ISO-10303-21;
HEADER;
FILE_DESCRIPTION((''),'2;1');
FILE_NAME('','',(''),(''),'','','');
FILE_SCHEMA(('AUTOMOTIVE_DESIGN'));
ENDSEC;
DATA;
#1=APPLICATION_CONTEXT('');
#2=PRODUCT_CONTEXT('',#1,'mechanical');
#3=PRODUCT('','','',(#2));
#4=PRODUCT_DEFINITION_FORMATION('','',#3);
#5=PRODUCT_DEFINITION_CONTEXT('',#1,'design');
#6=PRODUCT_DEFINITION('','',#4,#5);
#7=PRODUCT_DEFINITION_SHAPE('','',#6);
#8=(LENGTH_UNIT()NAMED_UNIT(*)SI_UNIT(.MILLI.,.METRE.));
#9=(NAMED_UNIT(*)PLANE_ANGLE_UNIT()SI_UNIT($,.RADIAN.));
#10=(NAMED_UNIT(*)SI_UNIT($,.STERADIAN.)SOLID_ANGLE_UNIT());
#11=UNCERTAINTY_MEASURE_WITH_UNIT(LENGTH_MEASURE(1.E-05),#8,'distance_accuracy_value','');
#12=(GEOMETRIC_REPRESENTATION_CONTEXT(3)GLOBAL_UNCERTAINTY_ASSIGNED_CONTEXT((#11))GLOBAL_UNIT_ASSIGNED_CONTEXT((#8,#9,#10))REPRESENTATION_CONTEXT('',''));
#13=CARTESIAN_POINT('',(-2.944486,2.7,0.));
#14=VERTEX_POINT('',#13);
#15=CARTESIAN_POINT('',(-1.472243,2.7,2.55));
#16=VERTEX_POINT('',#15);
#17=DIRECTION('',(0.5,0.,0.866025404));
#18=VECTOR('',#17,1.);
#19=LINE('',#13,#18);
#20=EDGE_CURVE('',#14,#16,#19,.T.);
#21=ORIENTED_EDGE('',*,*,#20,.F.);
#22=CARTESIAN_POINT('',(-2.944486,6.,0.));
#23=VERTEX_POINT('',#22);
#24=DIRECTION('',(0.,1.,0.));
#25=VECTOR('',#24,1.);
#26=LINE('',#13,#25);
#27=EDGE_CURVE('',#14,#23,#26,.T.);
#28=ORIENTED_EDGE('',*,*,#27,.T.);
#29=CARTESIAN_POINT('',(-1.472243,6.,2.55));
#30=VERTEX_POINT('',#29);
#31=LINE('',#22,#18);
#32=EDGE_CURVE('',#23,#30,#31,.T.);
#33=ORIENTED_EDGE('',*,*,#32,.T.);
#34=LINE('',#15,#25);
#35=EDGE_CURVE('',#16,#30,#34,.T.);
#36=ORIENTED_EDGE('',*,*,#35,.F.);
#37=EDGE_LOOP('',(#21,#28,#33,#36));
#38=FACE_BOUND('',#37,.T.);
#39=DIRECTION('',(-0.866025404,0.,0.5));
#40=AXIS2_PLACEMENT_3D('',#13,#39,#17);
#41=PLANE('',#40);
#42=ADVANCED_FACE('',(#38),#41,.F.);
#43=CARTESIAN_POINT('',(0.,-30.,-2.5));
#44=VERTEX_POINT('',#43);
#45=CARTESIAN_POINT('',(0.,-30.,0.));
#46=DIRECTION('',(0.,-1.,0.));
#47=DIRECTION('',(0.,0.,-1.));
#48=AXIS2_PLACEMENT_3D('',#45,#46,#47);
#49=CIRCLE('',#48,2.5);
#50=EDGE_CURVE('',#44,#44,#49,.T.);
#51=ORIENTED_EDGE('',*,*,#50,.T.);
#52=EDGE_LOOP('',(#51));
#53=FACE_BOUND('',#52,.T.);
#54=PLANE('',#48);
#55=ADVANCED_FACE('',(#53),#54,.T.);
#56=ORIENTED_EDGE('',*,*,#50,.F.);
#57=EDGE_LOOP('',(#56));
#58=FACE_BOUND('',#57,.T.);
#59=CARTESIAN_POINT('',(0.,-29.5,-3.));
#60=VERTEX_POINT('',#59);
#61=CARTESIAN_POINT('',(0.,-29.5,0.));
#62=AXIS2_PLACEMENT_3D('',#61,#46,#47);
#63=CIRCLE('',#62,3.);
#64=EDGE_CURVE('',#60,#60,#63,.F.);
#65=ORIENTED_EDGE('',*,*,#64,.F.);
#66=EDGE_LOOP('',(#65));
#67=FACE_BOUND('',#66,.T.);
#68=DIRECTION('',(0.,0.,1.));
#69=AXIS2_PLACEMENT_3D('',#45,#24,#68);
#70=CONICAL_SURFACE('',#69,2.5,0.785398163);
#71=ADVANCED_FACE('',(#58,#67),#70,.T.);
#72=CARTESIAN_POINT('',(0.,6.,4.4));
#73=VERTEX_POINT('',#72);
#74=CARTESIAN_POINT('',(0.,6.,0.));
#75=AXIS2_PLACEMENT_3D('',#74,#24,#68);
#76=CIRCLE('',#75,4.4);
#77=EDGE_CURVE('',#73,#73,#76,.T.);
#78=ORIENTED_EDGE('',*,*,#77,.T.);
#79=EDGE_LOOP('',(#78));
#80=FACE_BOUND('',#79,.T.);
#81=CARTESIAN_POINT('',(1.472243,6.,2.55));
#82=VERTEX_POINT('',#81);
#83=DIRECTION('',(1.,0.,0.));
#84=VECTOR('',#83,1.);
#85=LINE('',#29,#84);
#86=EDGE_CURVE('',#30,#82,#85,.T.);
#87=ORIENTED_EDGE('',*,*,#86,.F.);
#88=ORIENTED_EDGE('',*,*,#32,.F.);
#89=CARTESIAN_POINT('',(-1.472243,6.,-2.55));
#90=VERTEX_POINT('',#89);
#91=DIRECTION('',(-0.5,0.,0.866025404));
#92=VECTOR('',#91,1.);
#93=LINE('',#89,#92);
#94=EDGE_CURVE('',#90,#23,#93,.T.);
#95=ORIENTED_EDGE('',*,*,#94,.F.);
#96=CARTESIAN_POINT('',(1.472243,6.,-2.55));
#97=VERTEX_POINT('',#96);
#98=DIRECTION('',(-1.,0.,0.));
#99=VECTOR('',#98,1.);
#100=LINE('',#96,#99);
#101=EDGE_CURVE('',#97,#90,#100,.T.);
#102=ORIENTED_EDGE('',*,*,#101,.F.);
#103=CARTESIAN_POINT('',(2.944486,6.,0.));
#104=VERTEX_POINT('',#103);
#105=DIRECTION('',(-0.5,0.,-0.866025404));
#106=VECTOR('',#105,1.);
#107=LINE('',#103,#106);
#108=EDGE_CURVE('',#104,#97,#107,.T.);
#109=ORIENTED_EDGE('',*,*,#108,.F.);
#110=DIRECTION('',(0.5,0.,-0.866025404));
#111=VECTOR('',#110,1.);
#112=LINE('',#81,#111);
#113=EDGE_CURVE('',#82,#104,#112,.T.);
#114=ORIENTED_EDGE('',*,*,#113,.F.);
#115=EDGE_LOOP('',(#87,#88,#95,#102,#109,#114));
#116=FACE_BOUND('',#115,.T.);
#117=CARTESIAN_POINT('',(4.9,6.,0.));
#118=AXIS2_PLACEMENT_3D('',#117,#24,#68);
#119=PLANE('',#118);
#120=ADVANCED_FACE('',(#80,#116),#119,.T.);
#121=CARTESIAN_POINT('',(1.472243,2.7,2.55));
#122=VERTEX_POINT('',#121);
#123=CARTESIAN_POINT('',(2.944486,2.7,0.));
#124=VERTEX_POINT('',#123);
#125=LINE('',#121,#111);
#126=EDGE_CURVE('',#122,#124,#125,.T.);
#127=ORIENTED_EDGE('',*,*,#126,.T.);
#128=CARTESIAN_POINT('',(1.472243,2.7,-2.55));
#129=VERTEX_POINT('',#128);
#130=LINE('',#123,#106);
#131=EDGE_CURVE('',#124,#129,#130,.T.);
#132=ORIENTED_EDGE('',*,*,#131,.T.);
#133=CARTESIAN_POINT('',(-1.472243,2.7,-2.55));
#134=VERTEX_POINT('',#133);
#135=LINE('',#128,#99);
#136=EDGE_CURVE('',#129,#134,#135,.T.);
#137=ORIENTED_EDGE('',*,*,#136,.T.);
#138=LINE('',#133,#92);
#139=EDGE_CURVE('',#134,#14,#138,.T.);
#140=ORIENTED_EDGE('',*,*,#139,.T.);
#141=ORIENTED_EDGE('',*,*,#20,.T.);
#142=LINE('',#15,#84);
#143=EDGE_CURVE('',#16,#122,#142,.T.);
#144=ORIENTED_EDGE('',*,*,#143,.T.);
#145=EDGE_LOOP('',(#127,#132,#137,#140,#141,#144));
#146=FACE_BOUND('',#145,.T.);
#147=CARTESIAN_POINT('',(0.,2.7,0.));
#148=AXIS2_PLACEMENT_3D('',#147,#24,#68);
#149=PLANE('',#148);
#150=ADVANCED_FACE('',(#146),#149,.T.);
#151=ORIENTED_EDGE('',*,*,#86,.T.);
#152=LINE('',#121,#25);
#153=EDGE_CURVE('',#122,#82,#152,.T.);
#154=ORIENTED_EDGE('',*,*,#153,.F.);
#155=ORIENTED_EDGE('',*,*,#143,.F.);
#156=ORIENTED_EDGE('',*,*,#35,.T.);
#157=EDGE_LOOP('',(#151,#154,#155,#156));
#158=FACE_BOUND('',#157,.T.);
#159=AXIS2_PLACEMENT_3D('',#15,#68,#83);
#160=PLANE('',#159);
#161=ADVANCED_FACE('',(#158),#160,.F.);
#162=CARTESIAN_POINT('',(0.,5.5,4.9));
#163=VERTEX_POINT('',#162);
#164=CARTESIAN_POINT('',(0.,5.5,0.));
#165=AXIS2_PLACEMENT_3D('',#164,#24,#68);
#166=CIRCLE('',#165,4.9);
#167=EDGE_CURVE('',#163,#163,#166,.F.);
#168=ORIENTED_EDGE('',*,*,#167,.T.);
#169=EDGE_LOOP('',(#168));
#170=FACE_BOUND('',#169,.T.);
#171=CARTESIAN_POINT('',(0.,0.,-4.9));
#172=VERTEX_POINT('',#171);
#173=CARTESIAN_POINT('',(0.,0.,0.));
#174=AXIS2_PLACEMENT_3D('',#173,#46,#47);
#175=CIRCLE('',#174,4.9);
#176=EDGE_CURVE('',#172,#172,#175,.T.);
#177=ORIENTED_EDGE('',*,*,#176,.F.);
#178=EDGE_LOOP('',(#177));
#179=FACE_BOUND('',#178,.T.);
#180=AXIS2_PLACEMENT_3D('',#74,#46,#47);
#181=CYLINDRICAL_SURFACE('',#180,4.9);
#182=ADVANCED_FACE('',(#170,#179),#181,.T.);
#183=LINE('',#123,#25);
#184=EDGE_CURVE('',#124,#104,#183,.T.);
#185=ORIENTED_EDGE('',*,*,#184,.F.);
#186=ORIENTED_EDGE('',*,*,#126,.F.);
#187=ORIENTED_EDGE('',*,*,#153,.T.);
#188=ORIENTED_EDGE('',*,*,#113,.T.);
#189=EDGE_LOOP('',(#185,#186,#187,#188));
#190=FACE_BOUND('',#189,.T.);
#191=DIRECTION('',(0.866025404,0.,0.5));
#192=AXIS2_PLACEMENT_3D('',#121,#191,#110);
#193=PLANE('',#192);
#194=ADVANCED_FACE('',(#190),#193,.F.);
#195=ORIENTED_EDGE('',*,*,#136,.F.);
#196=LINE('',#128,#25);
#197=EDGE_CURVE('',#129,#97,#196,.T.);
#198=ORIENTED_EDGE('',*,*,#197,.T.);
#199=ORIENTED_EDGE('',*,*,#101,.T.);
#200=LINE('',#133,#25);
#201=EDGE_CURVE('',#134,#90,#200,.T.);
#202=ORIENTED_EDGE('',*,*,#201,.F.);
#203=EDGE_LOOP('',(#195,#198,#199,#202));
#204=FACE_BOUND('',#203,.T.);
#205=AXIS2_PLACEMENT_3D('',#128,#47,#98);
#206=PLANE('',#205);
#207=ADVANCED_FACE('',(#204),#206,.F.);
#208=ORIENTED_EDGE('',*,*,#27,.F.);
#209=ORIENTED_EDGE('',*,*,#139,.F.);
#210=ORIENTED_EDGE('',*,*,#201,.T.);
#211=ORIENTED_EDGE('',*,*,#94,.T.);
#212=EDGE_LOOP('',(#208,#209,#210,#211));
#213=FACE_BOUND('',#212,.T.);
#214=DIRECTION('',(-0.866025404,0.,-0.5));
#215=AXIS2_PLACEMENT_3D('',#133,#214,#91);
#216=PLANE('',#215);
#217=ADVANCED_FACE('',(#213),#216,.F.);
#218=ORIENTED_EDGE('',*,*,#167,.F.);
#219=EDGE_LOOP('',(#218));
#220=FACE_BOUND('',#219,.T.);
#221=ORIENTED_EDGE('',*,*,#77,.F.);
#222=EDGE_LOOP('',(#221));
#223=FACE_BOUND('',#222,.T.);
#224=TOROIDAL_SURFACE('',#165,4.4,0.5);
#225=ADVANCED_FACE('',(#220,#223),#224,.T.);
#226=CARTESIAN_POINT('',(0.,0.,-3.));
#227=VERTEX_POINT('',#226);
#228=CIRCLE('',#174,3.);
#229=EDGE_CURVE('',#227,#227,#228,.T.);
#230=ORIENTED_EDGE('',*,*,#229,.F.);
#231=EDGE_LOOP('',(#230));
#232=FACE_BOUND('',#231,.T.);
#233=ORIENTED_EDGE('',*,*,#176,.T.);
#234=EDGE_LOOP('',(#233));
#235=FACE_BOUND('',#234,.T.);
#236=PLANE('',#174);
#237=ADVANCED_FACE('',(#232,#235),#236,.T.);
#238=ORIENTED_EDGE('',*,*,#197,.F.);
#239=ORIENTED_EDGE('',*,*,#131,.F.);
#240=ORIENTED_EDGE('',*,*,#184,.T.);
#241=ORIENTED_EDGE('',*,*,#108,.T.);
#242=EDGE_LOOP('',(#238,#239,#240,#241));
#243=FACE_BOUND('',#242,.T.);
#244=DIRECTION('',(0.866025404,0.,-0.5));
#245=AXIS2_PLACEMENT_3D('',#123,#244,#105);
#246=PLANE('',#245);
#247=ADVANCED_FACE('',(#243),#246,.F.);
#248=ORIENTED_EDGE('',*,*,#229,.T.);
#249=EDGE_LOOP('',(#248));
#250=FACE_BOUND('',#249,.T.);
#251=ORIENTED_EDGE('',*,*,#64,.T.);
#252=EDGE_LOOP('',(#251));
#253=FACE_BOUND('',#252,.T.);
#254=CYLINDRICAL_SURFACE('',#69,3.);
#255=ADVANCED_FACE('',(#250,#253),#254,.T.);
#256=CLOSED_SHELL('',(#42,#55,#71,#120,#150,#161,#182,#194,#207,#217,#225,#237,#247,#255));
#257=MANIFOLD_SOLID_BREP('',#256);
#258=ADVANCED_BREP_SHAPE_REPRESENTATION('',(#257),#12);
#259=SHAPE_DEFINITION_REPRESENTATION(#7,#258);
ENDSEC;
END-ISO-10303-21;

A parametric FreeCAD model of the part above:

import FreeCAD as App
import Part
import Sketcher
Q = App.Units.Quantity


def edges_at(feature, points):
    """Names of the edges that pass closest to the given points."""
    edges = feature.Shape.Edges
    near = lambda p: min(range(len(edges)), key=lambda i: edges[i].distToShape(Part.Vertex(*p))[0])
    return sorted({f"Edge{near(p) + 1}" for p in points})


def add_polygon(sketch, points):
    """Adds a closed chain of lines whose ends are joined by coincident constraints."""
    first, n = sketch.GeometryCount, len(points)
    for a, b in zip(points, points[1:] + points[:1]):
        sketch.addGeometry(Part.LineSegment(App.Vector(*a, 0), App.Vector(*b, 0)), False)
    for i in range(n):
        sketch.addConstraint(Sketcher.Constraint("Coincident", first + i, 2, first + (i + 1) % n, 1))

doc = App.newDocument("Part")
body = doc.addObject("PartDesign::Body", "Body")

# Sketch on XY plane
sketch1 = body.newObject("Sketcher::SketchObject", "Sketch")
sketch1.AttachmentSupport = (doc.getObject("XY_Plane"), [""])
sketch1.MapMode = "FlatFace"
add_polygon(sketch1, [(0, 6), (0, 0), (4.9, 0), (4.9, 6)])  # lines 0-3
sketch1.addConstraint([
    Sketcher.Constraint("Vertical", 0),
    Sketcher.Constraint("Horizontal", 1),
    Sketcher.Constraint("Vertical", 2),
    Sketcher.Constraint("Horizontal", 3),
    Sketcher.Constraint("Coincident", 0, 2, -1, 1),
    Sketcher.Constraint("DistanceY", 0, 2, 0, 1, 6.0),
    Sketcher.Constraint("DistanceX", 1, 1, 1, 2, 4.9),
])
revolution = body.newObject("PartDesign::Revolution", "Revolution")
revolution.Profile = sketch1
revolution.ReferenceAxis = (sketch1, ["V_Axis"])
revolution.Angle = 360

# Sketch on XZ plane
sketch2 = body.newObject("Sketcher::SketchObject", "Sketch001")
sketch2.AttachmentSupport = (doc.getObject("XZ_Plane"), [""])
sketch2.MapMode = "FlatFace"
sketch2.addGeometry(Part.Circle(App.Vector(0, 0, 0), App.Vector(0, 0, 1), 3), False)
sketch2.addConstraint([
    Sketcher.Constraint("Coincident", 0, 3, -1, 1),
    Sketcher.Constraint("Diameter", 0, 6.0),
])
pad1 = body.newObject("PartDesign::Pad", "Pad")
pad1.Profile = sketch2
pad1.Length = 30

# Sketch on XZ plane
sketch3 = body.newObject("Sketcher::SketchObject", "Sketch002")
sketch3.AttachmentSupport = (doc.getObject("XZ_Plane"), [""])
sketch3.MapMode = "FlatFace"
sketch3.AttachmentOffset = App.Placement(App.Vector(0, 0, -6), App.Rotation())
add_polygon(sketch3, [(-1.5, 2.5), (1.5, 2.5), (2.9, 0), (1.5, -2.5), (-1.5, -2.5), (-2.9, 0)])  # lines 0-5
sketch3.addConstraint([
    Sketcher.Constraint("Horizontal", 0),
    Sketcher.Constraint("Horizontal", 3),
    Sketcher.Constraint("Symmetric", 0, 2, 3, 2, -1, 1),
    Sketcher.Constraint("Symmetric", 1, 2, 4, 2, -1, 1),
    Sketcher.Constraint("PointOnObject", 1, 2, -1),
    Sketcher.Constraint("Parallel", 2, 5),
    Sketcher.Constraint("Vertical", 0, 2, 2, 2),
    Sketcher.Constraint("Angle", 1, Q("-60 deg")),
    Sketcher.Constraint("DistanceY", 2, 2, 0, 2, 5.1),
    Sketcher.Constraint("DistanceX", 0, 1, 0, 2, 2.944486),
])
pocket1 = body.newObject("PartDesign::Pocket", "Pocket")
pocket1.Profile = sketch3
pocket1.Length = 3.3
pocket1.Reversed = True
doc.recompute()

chamfer = body.newObject("PartDesign::Chamfer", "Chamfer")
chamfer.Base = (pocket1, edges_at(pocket1, [(0, -30, 3)]))
chamfer.Size = 0.5
doc.recompute()

fillet = body.newObject("PartDesign::Fillet", "Fillet")
fillet.Base = (chamfer, edges_at(chamfer, [(0, 6, 4.9)]))
fillet.Radius = 0.5

doc.recompute()
